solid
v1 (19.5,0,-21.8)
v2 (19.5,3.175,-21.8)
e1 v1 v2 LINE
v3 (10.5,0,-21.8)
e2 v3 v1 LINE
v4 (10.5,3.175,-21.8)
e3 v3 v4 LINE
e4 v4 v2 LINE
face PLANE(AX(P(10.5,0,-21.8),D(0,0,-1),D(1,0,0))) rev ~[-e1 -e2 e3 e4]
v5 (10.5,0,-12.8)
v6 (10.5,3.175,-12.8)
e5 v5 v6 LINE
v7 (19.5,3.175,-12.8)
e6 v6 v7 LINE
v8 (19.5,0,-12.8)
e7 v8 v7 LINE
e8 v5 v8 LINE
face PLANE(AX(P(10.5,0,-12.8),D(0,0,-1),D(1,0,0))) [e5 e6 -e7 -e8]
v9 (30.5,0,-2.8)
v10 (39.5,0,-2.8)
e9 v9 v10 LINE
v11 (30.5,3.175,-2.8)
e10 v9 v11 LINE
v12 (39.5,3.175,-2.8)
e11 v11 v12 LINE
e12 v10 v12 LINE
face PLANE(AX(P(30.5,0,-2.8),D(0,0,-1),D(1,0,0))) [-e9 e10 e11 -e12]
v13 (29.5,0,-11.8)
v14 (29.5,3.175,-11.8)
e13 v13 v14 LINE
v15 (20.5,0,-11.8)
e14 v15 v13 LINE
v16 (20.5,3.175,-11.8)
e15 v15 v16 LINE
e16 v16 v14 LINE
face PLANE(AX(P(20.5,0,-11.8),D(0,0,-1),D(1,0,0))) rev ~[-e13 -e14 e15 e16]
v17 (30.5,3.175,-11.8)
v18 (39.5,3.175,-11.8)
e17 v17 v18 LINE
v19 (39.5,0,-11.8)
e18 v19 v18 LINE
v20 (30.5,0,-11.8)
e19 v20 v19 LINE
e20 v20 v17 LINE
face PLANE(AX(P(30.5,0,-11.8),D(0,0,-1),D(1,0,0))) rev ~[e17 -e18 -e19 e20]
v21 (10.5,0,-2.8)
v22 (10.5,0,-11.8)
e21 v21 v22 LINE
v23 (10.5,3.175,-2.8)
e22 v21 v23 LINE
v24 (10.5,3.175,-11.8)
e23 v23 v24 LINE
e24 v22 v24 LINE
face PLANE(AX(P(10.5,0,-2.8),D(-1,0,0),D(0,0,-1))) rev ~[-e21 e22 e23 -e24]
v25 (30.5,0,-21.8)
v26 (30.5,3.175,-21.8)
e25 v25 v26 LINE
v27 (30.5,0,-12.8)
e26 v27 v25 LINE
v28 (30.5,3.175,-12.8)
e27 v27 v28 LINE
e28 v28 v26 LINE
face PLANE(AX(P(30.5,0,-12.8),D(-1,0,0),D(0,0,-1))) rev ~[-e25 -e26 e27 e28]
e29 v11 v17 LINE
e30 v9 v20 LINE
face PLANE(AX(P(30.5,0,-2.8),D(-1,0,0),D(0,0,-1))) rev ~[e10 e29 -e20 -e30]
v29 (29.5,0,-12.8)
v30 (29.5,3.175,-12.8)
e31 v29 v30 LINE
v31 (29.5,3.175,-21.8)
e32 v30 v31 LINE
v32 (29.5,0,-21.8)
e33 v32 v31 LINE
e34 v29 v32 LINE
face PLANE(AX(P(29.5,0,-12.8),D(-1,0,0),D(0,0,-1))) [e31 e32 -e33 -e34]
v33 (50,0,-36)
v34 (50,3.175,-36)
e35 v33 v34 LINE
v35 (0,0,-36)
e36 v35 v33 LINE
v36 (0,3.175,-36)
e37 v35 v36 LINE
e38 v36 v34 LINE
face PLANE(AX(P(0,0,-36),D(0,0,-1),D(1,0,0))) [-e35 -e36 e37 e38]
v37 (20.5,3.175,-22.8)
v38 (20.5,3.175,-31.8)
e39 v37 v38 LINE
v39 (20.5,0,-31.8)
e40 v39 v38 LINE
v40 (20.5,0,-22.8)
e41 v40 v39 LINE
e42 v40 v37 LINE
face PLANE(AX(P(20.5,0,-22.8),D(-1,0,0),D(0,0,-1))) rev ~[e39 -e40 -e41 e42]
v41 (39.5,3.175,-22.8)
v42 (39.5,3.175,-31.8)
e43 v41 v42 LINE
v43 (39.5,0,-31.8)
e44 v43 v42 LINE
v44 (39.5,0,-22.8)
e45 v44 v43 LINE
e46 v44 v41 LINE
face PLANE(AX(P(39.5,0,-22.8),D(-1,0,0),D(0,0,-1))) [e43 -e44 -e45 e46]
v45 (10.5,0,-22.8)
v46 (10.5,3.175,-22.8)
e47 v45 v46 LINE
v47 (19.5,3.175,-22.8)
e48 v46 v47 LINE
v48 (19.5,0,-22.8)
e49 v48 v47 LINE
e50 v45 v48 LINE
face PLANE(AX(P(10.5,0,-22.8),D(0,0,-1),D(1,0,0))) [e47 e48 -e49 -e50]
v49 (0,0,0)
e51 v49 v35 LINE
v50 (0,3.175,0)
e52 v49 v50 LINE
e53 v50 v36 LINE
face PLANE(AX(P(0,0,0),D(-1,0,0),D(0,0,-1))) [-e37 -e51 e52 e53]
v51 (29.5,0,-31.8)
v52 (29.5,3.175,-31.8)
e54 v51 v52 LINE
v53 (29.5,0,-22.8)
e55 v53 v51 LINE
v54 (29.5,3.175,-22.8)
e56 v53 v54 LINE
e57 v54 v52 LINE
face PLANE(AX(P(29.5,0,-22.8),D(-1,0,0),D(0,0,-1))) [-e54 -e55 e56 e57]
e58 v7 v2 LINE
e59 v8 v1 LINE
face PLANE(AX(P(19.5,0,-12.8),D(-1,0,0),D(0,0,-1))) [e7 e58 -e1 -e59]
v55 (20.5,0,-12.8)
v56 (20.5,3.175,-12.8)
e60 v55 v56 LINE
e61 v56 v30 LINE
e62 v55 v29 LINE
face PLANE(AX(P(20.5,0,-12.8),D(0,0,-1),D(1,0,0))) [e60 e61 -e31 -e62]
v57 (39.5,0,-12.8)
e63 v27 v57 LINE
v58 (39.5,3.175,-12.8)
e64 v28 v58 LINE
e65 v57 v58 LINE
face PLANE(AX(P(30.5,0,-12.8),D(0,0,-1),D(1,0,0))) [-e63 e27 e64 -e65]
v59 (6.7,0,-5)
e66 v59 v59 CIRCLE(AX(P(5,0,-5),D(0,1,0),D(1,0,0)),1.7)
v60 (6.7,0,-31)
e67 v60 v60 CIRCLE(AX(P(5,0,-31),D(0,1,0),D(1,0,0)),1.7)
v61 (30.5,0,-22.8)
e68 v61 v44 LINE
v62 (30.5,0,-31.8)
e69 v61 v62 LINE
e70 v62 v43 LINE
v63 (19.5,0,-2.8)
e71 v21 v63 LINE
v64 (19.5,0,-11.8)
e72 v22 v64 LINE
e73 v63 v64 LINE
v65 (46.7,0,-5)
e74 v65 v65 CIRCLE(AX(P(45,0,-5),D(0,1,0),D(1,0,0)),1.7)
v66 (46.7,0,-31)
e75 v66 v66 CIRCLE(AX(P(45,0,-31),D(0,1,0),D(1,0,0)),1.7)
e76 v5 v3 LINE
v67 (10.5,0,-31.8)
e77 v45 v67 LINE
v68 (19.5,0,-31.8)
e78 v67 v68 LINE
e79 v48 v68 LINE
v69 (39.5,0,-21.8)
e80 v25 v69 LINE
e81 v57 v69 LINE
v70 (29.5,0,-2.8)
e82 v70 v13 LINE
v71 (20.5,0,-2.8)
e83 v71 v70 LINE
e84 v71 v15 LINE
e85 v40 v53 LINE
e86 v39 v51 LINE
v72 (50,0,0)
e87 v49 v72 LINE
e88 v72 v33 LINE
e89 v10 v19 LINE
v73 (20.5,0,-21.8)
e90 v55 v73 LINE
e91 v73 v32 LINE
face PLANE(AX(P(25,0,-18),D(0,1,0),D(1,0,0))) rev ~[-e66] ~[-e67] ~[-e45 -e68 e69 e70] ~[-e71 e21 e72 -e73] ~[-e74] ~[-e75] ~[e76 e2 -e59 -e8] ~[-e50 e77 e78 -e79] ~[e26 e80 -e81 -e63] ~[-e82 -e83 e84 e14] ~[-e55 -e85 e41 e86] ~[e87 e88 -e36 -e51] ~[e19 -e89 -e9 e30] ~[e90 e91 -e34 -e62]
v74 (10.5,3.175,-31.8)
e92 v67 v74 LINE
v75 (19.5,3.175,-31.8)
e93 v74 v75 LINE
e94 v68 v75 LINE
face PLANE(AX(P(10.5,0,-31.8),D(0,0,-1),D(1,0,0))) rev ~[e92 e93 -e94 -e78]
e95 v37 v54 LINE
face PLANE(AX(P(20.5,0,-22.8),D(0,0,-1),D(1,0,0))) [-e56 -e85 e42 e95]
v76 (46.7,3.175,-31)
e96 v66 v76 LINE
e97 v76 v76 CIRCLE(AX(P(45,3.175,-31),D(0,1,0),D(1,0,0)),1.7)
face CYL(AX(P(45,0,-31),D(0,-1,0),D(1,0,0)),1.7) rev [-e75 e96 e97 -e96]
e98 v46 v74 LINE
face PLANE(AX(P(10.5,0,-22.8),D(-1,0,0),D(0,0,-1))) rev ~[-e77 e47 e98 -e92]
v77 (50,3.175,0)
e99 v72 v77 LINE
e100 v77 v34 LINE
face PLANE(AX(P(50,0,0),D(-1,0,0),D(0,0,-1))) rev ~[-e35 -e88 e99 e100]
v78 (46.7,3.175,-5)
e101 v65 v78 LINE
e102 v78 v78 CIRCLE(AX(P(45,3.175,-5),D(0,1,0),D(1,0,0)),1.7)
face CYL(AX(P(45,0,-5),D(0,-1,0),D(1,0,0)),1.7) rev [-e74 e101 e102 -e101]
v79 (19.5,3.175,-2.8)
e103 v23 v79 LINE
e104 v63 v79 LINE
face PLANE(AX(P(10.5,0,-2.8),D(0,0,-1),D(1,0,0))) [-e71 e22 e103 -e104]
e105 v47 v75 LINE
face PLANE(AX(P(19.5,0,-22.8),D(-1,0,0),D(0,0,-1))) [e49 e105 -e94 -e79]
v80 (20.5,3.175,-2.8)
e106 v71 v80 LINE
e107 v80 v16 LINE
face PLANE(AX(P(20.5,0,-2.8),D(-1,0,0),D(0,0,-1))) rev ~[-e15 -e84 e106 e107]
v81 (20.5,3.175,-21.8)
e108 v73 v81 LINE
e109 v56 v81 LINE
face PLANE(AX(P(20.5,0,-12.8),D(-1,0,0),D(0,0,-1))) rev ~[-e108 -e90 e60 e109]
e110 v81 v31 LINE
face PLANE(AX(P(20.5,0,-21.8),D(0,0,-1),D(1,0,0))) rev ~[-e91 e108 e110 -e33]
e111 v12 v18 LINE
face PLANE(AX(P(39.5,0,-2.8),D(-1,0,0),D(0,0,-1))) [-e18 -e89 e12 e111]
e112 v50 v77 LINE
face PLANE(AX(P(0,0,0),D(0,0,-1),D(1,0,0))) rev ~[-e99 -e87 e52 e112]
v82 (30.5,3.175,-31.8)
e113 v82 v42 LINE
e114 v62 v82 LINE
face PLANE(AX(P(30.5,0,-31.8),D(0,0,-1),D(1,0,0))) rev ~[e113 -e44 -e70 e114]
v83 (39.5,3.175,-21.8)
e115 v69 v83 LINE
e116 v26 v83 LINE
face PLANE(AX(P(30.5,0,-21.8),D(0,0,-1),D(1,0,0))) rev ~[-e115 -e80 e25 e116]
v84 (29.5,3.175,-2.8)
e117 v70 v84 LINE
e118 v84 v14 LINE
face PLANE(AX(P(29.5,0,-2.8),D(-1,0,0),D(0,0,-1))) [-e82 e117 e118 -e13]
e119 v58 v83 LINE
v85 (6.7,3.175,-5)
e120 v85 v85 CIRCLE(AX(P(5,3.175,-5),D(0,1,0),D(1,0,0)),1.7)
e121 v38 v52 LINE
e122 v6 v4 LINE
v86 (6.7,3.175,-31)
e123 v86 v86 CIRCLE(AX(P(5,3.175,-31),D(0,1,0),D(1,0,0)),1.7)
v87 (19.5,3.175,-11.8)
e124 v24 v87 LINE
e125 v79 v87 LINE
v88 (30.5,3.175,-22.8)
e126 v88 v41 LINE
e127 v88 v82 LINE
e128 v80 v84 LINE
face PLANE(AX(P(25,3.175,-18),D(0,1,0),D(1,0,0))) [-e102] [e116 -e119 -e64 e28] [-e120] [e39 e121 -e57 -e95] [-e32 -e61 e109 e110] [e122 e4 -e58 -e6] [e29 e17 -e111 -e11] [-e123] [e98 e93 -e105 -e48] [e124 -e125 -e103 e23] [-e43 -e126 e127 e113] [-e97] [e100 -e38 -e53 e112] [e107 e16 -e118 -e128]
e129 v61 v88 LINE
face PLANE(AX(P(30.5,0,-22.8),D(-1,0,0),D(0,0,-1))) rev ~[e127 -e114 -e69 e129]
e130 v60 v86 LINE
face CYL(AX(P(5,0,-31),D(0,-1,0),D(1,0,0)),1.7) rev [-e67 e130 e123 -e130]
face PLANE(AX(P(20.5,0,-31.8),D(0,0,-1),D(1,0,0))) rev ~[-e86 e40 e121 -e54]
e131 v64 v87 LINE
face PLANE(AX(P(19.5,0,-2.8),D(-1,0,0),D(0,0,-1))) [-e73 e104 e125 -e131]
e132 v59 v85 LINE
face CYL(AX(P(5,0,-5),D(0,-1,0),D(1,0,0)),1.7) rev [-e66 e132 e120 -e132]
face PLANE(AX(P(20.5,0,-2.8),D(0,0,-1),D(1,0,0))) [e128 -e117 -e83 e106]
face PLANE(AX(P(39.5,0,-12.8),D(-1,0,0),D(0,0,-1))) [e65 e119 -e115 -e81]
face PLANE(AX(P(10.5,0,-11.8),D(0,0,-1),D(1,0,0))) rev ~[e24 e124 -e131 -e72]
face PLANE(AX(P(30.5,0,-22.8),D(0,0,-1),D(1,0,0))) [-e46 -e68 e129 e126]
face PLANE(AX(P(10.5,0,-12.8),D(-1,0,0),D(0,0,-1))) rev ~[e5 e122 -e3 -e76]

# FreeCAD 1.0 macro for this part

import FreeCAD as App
import Part
import Sketcher

V = App.Vector

doc = App.newDocument("Part")
body = doc.addObject("PartDesign::Body", "Body")

# Sketch on XZ plane
sketch1 = body.newObject("Sketcher::SketchObject", "Sketch")
sketch1.AttachmentSupport = (doc.getObject("XZ_Plane"), [""])
sketch1.MapMode = "FlatFace"
sketch1.addGeometry([
    Part.LineSegment(V(0, -36, 0), V(0, 0, 0)),  # 0
    Part.LineSegment(V(0, 0, 0), V(50, 0, 0)),  # 1
    Part.LineSegment(V(50, 0, 0), V(50, -36, 0)),  # 2
    Part.LineSegment(V(50, -36, 0), V(0, -36, 0)),  # 3
    Part.Circle(V(5, -5, 0), V(0, 0, 1), 1.7),  # 4
    Part.LineSegment(V(19.5, -2.8, 0), V(10.5, -2.8, 0)),  # 5
    Part.LineSegment(V(10.5, -2.8, 0), V(10.5, -11.8, 0)),  # 6
    Part.LineSegment(V(10.5, -11.8, 0), V(19.5, -11.8, 0)),  # 7
    Part.LineSegment(V(19.5, -11.8, 0), V(19.5, -2.8, 0)),  # 8
    Part.LineSegment(V(19.5, -12.8, 0), V(10.5, -12.8, 0)),  # 9
    Part.LineSegment(V(10.5, -12.8, 0), V(10.5, -21.8, 0)),  # 10
    Part.LineSegment(V(10.5, -21.8, 0), V(19.5, -21.8, 0)),  # 11
    Part.LineSegment(V(19.5, -21.8, 0), V(19.5, -12.8, 0)),  # 12
    Part.LineSegment(V(29.5, -2.8, 0), V(20.5, -2.8, 0)),  # 13
    Part.LineSegment(V(20.5, -2.8, 0), V(20.5, -11.8, 0)),  # 14
    Part.LineSegment(V(20.5, -11.8, 0), V(29.5, -11.8, 0)),  # 15
    Part.LineSegment(V(29.5, -11.8, 0), V(29.5, -2.8, 0)),  # 16
    Part.LineSegment(V(39.5, -2.8, 0), V(30.5, -2.8, 0)),  # 17
    Part.LineSegment(V(30.5, -2.8, 0), V(30.5, -11.8, 0)),  # 18
    Part.LineSegment(V(30.5, -11.8, 0), V(39.5, -11.8, 0)),  # 19
    Part.LineSegment(V(39.5, -11.8, 0), V(39.5, -2.8, 0)),  # 20
    Part.Circle(V(45, -5, 0), V(0, 0, 1), 1.7),  # 21
    Part.LineSegment(V(29.5, -12.8, 0), V(20.5, -12.8, 0)),  # 22
    Part.LineSegment(V(20.5, -12.8, 0), V(20.5, -21.8, 0)),  # 23
    Part.LineSegment(V(20.5, -21.8, 0), V(29.5, -21.8, 0)),  # 24
    Part.LineSegment(V(29.5, -21.8, 0), V(29.5, -12.8, 0)),  # 25
    Part.LineSegment(V(39.5, -12.8, 0), V(30.5, -12.8, 0)),  # 26
    Part.LineSegment(V(30.5, -12.8, 0), V(30.5, -21.8, 0)),  # 27
    Part.LineSegment(V(30.5, -21.8, 0), V(39.5, -21.8, 0)),  # 28
    Part.LineSegment(V(39.5, -21.8, 0), V(39.5, -12.8, 0)),  # 29
    Part.Circle(V(5, -31, 0), V(0, 0, 1), 1.7),  # 30
    Part.LineSegment(V(19.5, -22.8, 0), V(10.5, -22.8, 0)),  # 31
    Part.LineSegment(V(10.5, -22.8, 0), V(10.5, -31.8, 0)),  # 32
    Part.LineSegment(V(10.5, -31.8, 0), V(19.5, -31.8, 0)),  # 33
    Part.LineSegment(V(19.5, -31.8, 0), V(19.5, -22.8, 0)),  # 34
    Part.LineSegment(V(29.5, -22.8, 0), V(20.5, -22.8, 0)),  # 35
    Part.LineSegment(V(20.5, -22.8, 0), V(20.5, -31.8, 0)),  # 36
    Part.LineSegment(V(20.5, -31.8, 0), V(29.5, -31.8, 0)),  # 37
    Part.LineSegment(V(29.5, -31.8, 0), V(29.5, -22.8, 0)),  # 38
    Part.LineSegment(V(39.5, -22.8, 0), V(30.5, -22.8, 0)),  # 39
    Part.LineSegment(V(30.5, -22.8, 0), V(30.5, -31.8, 0)),  # 40
    Part.LineSegment(V(30.5, -31.8, 0), V(39.5, -31.8, 0)),  # 41
    Part.LineSegment(V(39.5, -31.8, 0), V(39.5, -22.8, 0)),  # 42
    Part.Circle(V(45, -31, 0), V(0, 0, 1), 1.7),  # 43
], False)
sketch1.addConstraint([
    Sketcher.Constraint("Coincident", 0, 2, 1, 1),
    Sketcher.Constraint("Coincident", 1, 2, 2, 1),
    Sketcher.Constraint("Coincident", 2, 2, 3, 1),
    Sketcher.Constraint("Coincident", 3, 2, 0, 1),
    Sketcher.Constraint("Coincident", 5, 2, 6, 1),
    Sketcher.Constraint("Coincident", 6, 2, 7, 1),
    Sketcher.Constraint("Coincident", 7, 2, 8, 1),
    Sketcher.Constraint("Coincident", 8, 2, 5, 1),
    Sketcher.Constraint("Coincident", 9, 2, 10, 1),
    Sketcher.Constraint("Coincident", 10, 2, 11, 1),
    Sketcher.Constraint("Coincident", 11, 2, 12, 1),
    Sketcher.Constraint("Coincident", 12, 2, 9, 1),
    Sketcher.Constraint("Coincident", 13, 2, 14, 1),
    Sketcher.Constraint("Coincident", 14, 2, 15, 1),
    Sketcher.Constraint("Coincident", 15, 2, 16, 1),
    Sketcher.Constraint("Coincident", 16, 2, 13, 1),
    Sketcher.Constraint("Coincident", 17, 2, 18, 1),
    Sketcher.Constraint("Coincident", 18, 2, 19, 1),
    Sketcher.Constraint("Coincident", 19, 2, 20, 1),
    Sketcher.Constraint("Coincident", 20, 2, 17, 1),
    Sketcher.Constraint("Coincident", 22, 2, 23, 1),
    Sketcher.Constraint("Coincident", 23, 2, 24, 1),
    Sketcher.Constraint("Coincident", 24, 2, 25, 1),
    Sketcher.Constraint("Coincident", 25, 2, 22, 1),
    Sketcher.Constraint("Coincident", 26, 2, 27, 1),
    Sketcher.Constraint("Coincident", 27, 2, 28, 1),
    Sketcher.Constraint("Coincident", 28, 2, 29, 1),
    Sketcher.Constraint("Coincident", 29, 2, 26, 1),
    Sketcher.Constraint("Coincident", 31, 2, 32, 1),
    Sketcher.Constraint("Coincident", 32, 2, 33, 1),
    Sketcher.Constraint("Coincident", 33, 2, 34, 1),
    Sketcher.Constraint("Coincident", 34, 2, 31, 1),
    Sketcher.Constraint("Coincident", 35, 2, 36, 1),
    Sketcher.Constraint("Coincident", 36, 2, 37, 1),
    Sketcher.Constraint("Coincident", 37, 2, 38, 1),
    Sketcher.Constraint("Coincident", 38, 2, 35, 1),
    Sketcher.Constraint("Coincident", 39, 2, 40, 1),
    Sketcher.Constraint("Coincident", 40, 2, 41, 1),
    Sketcher.Constraint("Coincident", 41, 2, 42, 1),
    Sketcher.Constraint("Coincident", 42, 2, 39, 1),
    Sketcher.Constraint("Vertical", 0),
    Sketcher.Constraint("Horizontal", 1),
    Sketcher.Constraint("Vertical", 2),
    Sketcher.Constraint("Horizontal", 3),
    Sketcher.Constraint("Horizontal", 5),
    Sketcher.Constraint("Vertical", 6),
    Sketcher.Constraint("Horizontal", 7),
    Sketcher.Constraint("Vertical", 8),
    Sketcher.Constraint("Horizontal", 9),
    Sketcher.Constraint("Vertical", 10),
    Sketcher.Constraint("Horizontal", 11),
    Sketcher.Constraint("Vertical", 12),
    Sketcher.Constraint("Horizontal", 13),
    Sketcher.Constraint("Vertical", 14),
    Sketcher.Constraint("Horizontal", 15),
    Sketcher.Constraint("Vertical", 16),
    Sketcher.Constraint("Horizontal", 17),
    Sketcher.Constraint("Vertical", 18),
    Sketcher.Constraint("Horizontal", 19),
    Sketcher.Constraint("Vertical", 20),
    Sketcher.Constraint("Horizontal", 22),
    Sketcher.Constraint("Vertical", 23),
    Sketcher.Constraint("Horizontal", 24),
    Sketcher.Constraint("Vertical", 25),
    Sketcher.Constraint("Horizontal", 26),
    Sketcher.Constraint("Vertical", 27),
    Sketcher.Constraint("Horizontal", 28),
    Sketcher.Constraint("Vertical", 29),
    Sketcher.Constraint("Horizontal", 31),
    Sketcher.Constraint("Vertical", 32),
    Sketcher.Constraint("Horizontal", 33),
    Sketcher.Constraint("Vertical", 34),
    Sketcher.Constraint("Horizontal", 35),
    Sketcher.Constraint("Vertical", 36),
    Sketcher.Constraint("Horizontal", 37),
    Sketcher.Constraint("Vertical", 38),
    Sketcher.Constraint("Horizontal", 39),
    Sketcher.Constraint("Vertical", 40),
    Sketcher.Constraint("Horizontal", 41),
    Sketcher.Constraint("Vertical", 42),
    Sketcher.Constraint("Coincident", 0, 2, -1, 1),
    Sketcher.Constraint("Equal", 4, 21),
    Sketcher.Constraint("Equal", 21, 30),
    Sketcher.Constraint("Equal", 30, 43),
    Sketcher.Constraint("Horizontal", 4, 3, 21, 3),
    Sketcher.Constraint("Horizontal", 30, 3, 43, 3),
    Sketcher.Constraint("Horizontal", 8, 2, 13, 2),
    Sketcher.Constraint("Horizontal", 7, 2, 14, 2),
    Sketcher.Constraint("Horizontal", 16, 2, 17, 2),
    Sketcher.Constraint("Horizontal", 15, 2, 18, 2),
    Sketcher.Constraint("Horizontal", 12, 2, 22, 2),
    Sketcher.Constraint("Horizontal", 11, 2, 23, 2),
    Sketcher.Constraint("Horizontal", 25, 2, 26, 2),
    Sketcher.Constraint("Horizontal", 24, 2, 27, 2),
    Sketcher.Constraint("Horizontal", 34, 2, 35, 2),
    Sketcher.Constraint("Horizontal", 33, 2, 36, 2),
    Sketcher.Constraint("Horizontal", 38, 2, 39, 2),
    Sketcher.Constraint("Horizontal", 37, 2, 40, 2),
    Sketcher.Constraint("Vertical", 4, 3, 30, 3),
    Sketcher.Constraint("Vertical", 21, 3, 43, 3),
    Sketcher.Constraint("Vertical", 6, 2, 9, 2),
    Sketcher.Constraint("Vertical", 8, 2, 11, 2),
    Sketcher.Constraint("Vertical", 14, 2, 22, 2),
    Sketcher.Constraint("Vertical", 16, 2, 24, 2),
    Sketcher.Constraint("Vertical", 18, 2, 26, 2),
    Sketcher.Constraint("Vertical", 20, 2, 28, 2),
    Sketcher.Constraint("Vertical", 10, 2, 31, 2),
    Sketcher.Constraint("Vertical", 12, 2, 33, 2),
    Sketcher.Constraint("Vertical", 23, 2, 35, 2),
    Sketcher.Constraint("Vertical", 25, 2, 37, 2),
    Sketcher.Constraint("Vertical", 27, 2, 39, 2),
    Sketcher.Constraint("Vertical", 29, 2, 41, 2),
    Sketcher.Constraint("Equal", 11, 13),
    Sketcher.Constraint("Equal", 15, 17),
    Sketcher.Constraint("Equal", 41, 6),
    Sketcher.Constraint("Equal", 8, 10),
    Sketcher.Constraint("Equal", 29, 32),
    Sketcher.Constraint("Diameter", 4, 3.4),
    Sketcher.Constraint("DistanceX", 1, 1, 1, 2, 50.0),
    Sketcher.Constraint("DistanceX", 5, 2, 5, 1, 9.0),
    Sketcher.Constraint("DistanceY", 0, 1, 0, 2, 36.0),
    Sketcher.Constraint("DistanceX", -1, 1, 4, 3, 5.0),
    Sketcher.Constraint("DistanceY", 4, 3, -1, 1, 5.0),
    Sketcher.Constraint("DistanceX", -1, 1, 21, 3, 45.0),
    Sketcher.Constraint("DistanceY", 30, 3, -1, 1, 31.0),
    Sketcher.Constraint("DistanceY", 9, 2, 6, 2, 1.0),
    Sketcher.Constraint("DistanceX", 8, 2, 13, 2, 1.0),
    Sketcher.Constraint("DistanceX", 16, 2, 17, 2, 1.0),
    Sketcher.Constraint("DistanceY", 31, 2, 10, 2, 1.0),
    Sketcher.Constraint("DistanceX", -1, 1, 5, 2, 10.5),
    Sketcher.Constraint("DistanceY", 5, 2, -1, 1, 2.8),
])
pad1 = body.newObject("PartDesign::Pad", "Pad")
pad1.Profile = sketch1
pad1.Length = 3.175
pad1.Reversed = True

doc.recompute()
